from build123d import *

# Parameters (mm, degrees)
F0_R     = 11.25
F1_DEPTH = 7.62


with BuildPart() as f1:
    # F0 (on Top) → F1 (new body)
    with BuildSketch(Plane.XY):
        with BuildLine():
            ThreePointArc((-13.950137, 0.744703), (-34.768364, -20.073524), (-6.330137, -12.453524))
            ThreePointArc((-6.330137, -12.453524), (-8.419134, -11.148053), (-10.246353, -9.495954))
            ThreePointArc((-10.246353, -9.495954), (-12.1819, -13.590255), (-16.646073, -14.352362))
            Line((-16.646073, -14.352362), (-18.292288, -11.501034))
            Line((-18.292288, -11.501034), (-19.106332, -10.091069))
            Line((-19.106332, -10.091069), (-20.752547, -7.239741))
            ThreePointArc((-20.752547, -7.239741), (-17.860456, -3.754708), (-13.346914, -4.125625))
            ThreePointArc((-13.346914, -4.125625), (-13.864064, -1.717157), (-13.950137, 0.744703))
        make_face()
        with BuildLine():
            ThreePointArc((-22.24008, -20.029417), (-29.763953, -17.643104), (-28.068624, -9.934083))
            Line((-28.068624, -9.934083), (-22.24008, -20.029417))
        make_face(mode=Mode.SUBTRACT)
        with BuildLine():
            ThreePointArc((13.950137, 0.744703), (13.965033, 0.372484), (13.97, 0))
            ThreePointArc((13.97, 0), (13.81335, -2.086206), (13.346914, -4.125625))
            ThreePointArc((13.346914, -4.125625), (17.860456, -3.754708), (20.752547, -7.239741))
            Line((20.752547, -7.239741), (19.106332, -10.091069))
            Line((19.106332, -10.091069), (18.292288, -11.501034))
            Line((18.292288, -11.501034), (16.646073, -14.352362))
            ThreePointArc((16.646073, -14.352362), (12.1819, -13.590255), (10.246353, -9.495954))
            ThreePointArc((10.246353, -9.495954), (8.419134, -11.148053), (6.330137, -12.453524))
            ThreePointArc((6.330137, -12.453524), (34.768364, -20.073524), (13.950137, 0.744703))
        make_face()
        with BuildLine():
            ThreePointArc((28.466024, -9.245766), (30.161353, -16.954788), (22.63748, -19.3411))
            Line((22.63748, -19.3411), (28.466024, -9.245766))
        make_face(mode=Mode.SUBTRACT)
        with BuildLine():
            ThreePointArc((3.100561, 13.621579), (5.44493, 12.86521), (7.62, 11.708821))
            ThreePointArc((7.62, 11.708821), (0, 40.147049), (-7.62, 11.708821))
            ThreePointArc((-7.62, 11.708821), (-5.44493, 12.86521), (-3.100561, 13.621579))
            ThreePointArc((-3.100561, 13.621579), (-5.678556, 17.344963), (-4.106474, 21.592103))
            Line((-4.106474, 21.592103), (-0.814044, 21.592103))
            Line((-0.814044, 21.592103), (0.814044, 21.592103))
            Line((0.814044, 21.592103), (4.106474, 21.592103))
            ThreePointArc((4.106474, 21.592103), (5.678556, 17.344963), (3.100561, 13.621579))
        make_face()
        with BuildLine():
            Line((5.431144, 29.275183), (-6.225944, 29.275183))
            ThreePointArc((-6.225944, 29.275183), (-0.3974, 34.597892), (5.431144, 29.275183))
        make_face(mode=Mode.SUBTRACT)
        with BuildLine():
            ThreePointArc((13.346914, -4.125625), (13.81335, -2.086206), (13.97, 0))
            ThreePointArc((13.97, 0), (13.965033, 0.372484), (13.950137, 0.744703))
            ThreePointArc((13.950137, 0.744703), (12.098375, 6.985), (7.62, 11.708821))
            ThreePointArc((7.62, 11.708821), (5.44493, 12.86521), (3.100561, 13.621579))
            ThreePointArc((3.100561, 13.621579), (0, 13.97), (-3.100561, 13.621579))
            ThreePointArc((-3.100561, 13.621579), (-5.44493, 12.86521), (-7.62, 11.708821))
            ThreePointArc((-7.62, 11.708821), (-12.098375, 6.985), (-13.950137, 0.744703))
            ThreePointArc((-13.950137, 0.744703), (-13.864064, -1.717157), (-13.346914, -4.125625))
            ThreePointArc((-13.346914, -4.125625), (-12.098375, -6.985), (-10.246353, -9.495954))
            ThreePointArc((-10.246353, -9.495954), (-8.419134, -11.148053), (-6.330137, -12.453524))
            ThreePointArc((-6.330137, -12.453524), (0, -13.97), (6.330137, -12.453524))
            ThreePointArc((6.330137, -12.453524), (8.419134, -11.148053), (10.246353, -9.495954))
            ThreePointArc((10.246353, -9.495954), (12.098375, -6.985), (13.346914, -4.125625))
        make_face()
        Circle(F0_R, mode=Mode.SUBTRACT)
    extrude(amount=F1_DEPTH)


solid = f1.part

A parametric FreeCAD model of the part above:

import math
import FreeCAD as App
import Part
import Sketcher
from FreeCAD import Vector
Q = App.Units.Quantity

doc = App.newDocument("Part")
body = doc.addObject("PartDesign::Body", "Body")

# Sketch on XY plane
sketch1 = body.newObject("Sketcher::SketchObject", "Sketch")
sketch1.AttachmentSupport = (doc.getObject("XY_Plane"), [""])
sketch1.MapMode = "FlatFace"
sketch1.addGeometry([
    Part.ArcOfCircle(Part.Circle(Vector(-21.570137, -12.453524, 0), Vector(0, 0, 1), 15.24), math.radians(60), math.radians(360)),  # 0
    Part.ArcOfCircle(Part.Circle(Vector(0, -0.000002, 0), Vector(0, 0, 1), 13.969998), math.radians(-116.944273), math.radians(-63.055727)),  # 1
    Part.ArcOfCircle(Part.Circle(Vector(21.570137, -12.453524, 0), Vector(0, 0, 1), 15.24), math.radians(180), math.radians(480)),  # 2
    Part.ArcOfCircle(Part.Circle(Vector(0.000002, 0, 0), Vector(0, 0, 1), 13.969998), math.radians(3.055731), math.radians(56.944274)),  # 3
    Part.ArcOfCircle(Part.Circle(Vector(0, 24.907049, 0), Vector(0, 0, 1), 15.24), math.radians(-60.000001), math.radians(240.000001)),  # 4
    Part.ArcOfCircle(Part.Circle(Vector(-0.000002, 0, 0), Vector(0, 0, 1), 13.969998), math.radians(123.055726), math.radians(176.944269)),  # 5
    Part.LineSegment(Vector(-28.068624, -9.934083, 0), Vector(-22.24008, -20.029417, 0)),  # 6
    Part.ArcOfCircle(Part.Circle(Vector(-24.69547, -14.716815, 0), Vector(0, 0, 1), 5.852579), math.radians(125.194462), math.radians(294.80554)),  # 7
    Part.ArcOfCircle(Part.Circle(Vector(-15.959872, -8.27446, 0), Vector(0, 0, 1), 4.903099), math.radians(57.797067), math.radians(167.817062)),  # 8
    Part.ArcOfCircle(Part.Circle(Vector(-0.000011, -0.000006, 0), Vector(0, 0, 1), 13.969987), math.radians(-162.823264), math.radians(-137.176734)),  # 9
    Part.ArcOfCircle(Part.Circle(Vector(-15.145827, -9.684425, 0), Vector(0, 0, 1), 4.903098), math.radians(-107.817082), math.radians(2.20295)),  # 10
    Part.LineSegment(Vector(-16.646073, -14.352362, 0), Vector(-18.292288, -11.501034, 0)),  # 11
    Part.LineSegment(Vector(-18.292288, -11.501034, 0), Vector(-19.106332, -10.091069, 0)),  # 12
    Part.LineSegment(Vector(-19.106332, -10.091069, 0), Vector(-20.752547, -7.239741, 0)),  # 13
    Part.Circle(Vector(0, 0, 0), Vector(0, 0, 1), 11.25),  # 14
    Part.ArcOfCircle(Part.Circle(Vector(0.000011, -0.000006, 0), Vector(0, 0, 1), 13.969987), math.radians(-42.823266), math.radians(-17.176736)),  # 15
    Part.ArcOfCircle(Part.Circle(Vector(15.959872, -8.27446, 0), Vector(0, 0, 1), 4.903099), math.radians(12.182938), math.radians(122.202933)),  # 16
    Part.LineSegment(Vector(20.752547, -7.239741, 0), Vector(19.106332, -10.091069, 0)),  # 17
    Part.LineSegment(Vector(19.106332, -10.091069, 0), Vector(18.292288, -11.501034, 0)),  # 18
    Part.LineSegment(Vector(18.292288, -11.501034, 0), Vector(16.646073, -14.352362, 0)),  # 19
    Part.ArcOfCircle(Part.Circle(Vector(15.145827, -9.684425, 0), Vector(0, 0, 1), 4.903098), math.radians(177.79705), math.radians(287.817082)),  # 20
    Part.LineSegment(Vector(22.63748, -19.3411, 0), Vector(28.466024, -9.245766, 0)),  # 21
    Part.ArcOfCircle(Part.Circle(Vector(25.092871, -14.028498, 0), Vector(0, 0, 1), 5.852579), math.radians(-114.805545), math.radians(54.805543)),  # 22
    Part.ArcOfCircle(Part.Circle(Vector(0, 0.00001, 0), Vector(0, 0, 1), 13.96999), math.radians(77.176737), math.radians(102.823263)),  # 23
    Part.ArcOfCircle(Part.Circle(Vector(-0.814044, 17.958884, 0), Vector(0, 0, 1), 4.903098), math.radians(132.182929), math.radians(242.202943)),  # 24
    Part.LineSegment(Vector(-4.106474, 21.592103, 0), Vector(4.106474, 21.592103, 0)),  # 25
    Part.ArcOfCircle(Part.Circle(Vector(0.814044, 17.958884, 0), Vector(0, 0, 1), 4.903098), math.radians(-62.202943), math.radians(47.817071)),  # 26
    Part.LineSegment(Vector(5.431144, 29.275183, 0), Vector(-6.225944, 29.275183, 0)),  # 27
    Part.ArcOfCircle(Part.Circle(Vector(-0.3974, 28.745312, 0), Vector(0, 0, 1), 5.85258), math.radians(5.194458), math.radians(174.805542)),  # 28
], False)
sketch1.addConstraint([
    Sketcher.Constraint("Coincident", 0, 2, 1, 1),
    Sketcher.Constraint("Coincident", 1, 2, 2, 1),
    Sketcher.Constraint("Coincident", 2, 2, 3, 1),
    Sketcher.Constraint("Coincident", 3, 2, 4, 1),
    Sketcher.Constraint("Coincident", 4, 2, 5, 1),
    Sketcher.Constraint("Coincident", 5, 2, 0, 1),
    Sketcher.Constraint("Coincident", 6, 1, 7, 1),
    Sketcher.Constraint("Coincident", 7, 2, 6, 2),
    Sketcher.Constraint("Coincident", 8, 1, 9, 1),
    Sketcher.Constraint("Coincident", 9, 2, 10, 2),
    Sketcher.Constraint("Coincident", 10, 1, 11, 1),
    Sketcher.Constraint("Coincident", 11, 2, 12, 1),
    Sketcher.Constraint("Coincident", 12, 2, 13, 1),
    Sketcher.Constraint("Coincident", 13, 2, 8, 2),
    Sketcher.Constraint("Coincident", 15, 2, 16, 2),
    Sketcher.Constraint("Coincident", 16, 1, 17, 1),
    Sketcher.Constraint("Coincident", 17, 2, 18, 1),
    Sketcher.Constraint("Coincident", 18, 2, 19, 1),
    Sketcher.Constraint("Coincident", 19, 2, 20, 2),
    Sketcher.Constraint("Coincident", 20, 1, 15, 1),
    Sketcher.Constraint("Coincident", 21, 1, 22, 1),
    Sketcher.Constraint("Coincident", 22, 2, 21, 2),
    Sketcher.Constraint("Coincident", 23, 2, 24, 2),
    Sketcher.Constraint("Coincident", 24, 1, 25, 1),
    Sketcher.Constraint("Coincident", 25, 2, 26, 2),
    Sketcher.Constraint("Coincident", 26, 1, 23, 1),
    Sketcher.Constraint("Coincident", 27, 1, 28, 1),
    Sketcher.Constraint("Coincident", 28, 2, 27, 2),
    Sketcher.Constraint("Horizontal", 25),
    Sketcher.Constraint("Horizontal", 27),
    Sketcher.Constraint("Coincident", 1, 3, -1, 1),
    Sketcher.Constraint("Coincident", 3, 3, -1, 1),
    Sketcher.Constraint("Coincident", 5, 3, -1, 1),
    Sketcher.Constraint("Coincident", 14, 3, -1, 1),
    Sketcher.Constraint("Coincident", 23, 3, 3, 3),
    Sketcher.Constraint("Equal", 0, 2),
    Sketcher.Constraint("Equal", 1, 3),
    Sketcher.Constraint("Equal", 2, 4),
    Sketcher.Constraint("Equal", 3, 5),
    Sketcher.Constraint("Equal", 8, 10),
    Sketcher.Constraint("Equal", 9, 15),
    Sketcher.Constraint("Equal", 10, 16),
    Sketcher.Constraint("Equal", 16, 20),
    Sketcher.Constraint("Equal", 7, 22),
    Sketcher.Constraint("Equal", 20, 24),
    Sketcher.Constraint("Equal", 24, 26),
    Sketcher.Constraint("Equal", 22, 28),
    Sketcher.Constraint("Symmetric", 0, 3, 2, 3, -2),
    Sketcher.Constraint("Symmetric", 9, 3, 15, 3, -2),
    Sketcher.Constraint("Symmetric", 8, 3, 16, 3, -2),
    Sketcher.Constraint("Symmetric", 10, 3, 20, 3, -2),
    Sketcher.Constraint("Symmetric", 24, 3, 26, 3, -2),
    Sketcher.Constraint("Symmetric", 12, 2, 17, 2, -2),
    Sketcher.Constraint("Symmetric", 11, 2, 18, 2, -2),
    Sketcher.Constraint("PointOnObject", 4, 3, -2),
    Sketcher.Constraint("Parallel", 6, 11),
    Sketcher.Constraint("Parallel", 11, 12),
    Sketcher.Constraint("Parallel", 12, 13),
    Sketcher.Constraint("Parallel", 17, 18),
    Sketcher.Constraint("Parallel", 18, 19),
    Sketcher.Constraint("Parallel", 19, 21),
    Sketcher.Constraint("Horizontal", 2, 3, 0, 2),
    Sketcher.Constraint("Equal", 11, 13),
    Sketcher.Constraint("Equal", 6, 21),
    Sketcher.Constraint("Radius", 0, Q("0.6 in")),
    Sketcher.Constraint("Radius", 1, Q("0.5499999 in")),
    Sketcher.Constraint("Angle", 6, Q("-59.999999 deg")),
    Sketcher.Constraint("DistanceX", -1, 1, 3, 2, Q("0.3 in")),
    Sketcher.Constraint("Diameter", 14, Q("22.5 mm")),
    Sketcher.Constraint("Radius", 8, Q("4.903099 mm")),
    Sketcher.Constraint("Radius", 7, Q("5.852579 mm")),
    Sketcher.Constraint("Radius", 23, Q("13.96999 mm")),
    Sketcher.Constraint("DistanceX", 0, 3, 12, 2, Q("0.0970002 in")),
    Sketcher.Constraint("Radius", 9, Q("13.969987 mm")),
    Sketcher.Constraint("DistanceY", 23, 2, 24, 1, Q("0.3138002 in")),
    Sketcher.Constraint("DistanceX", 25, 1, 25, 2, Q("8.212948 mm")),
    Sketcher.Constraint("DistanceX", 28, 3, -1, 1, Q("0.3974 mm")),
    Sketcher.Constraint("DistanceY", 21, 1, -1, 1, Q("19.3411 mm")),
    Sketcher.Constraint("DistanceX", 7, 3, 8, 3, Q("8.735599 mm")),
    Sketcher.Constraint("DistanceY", 0, 3, 10, 3, Q("2.769099 mm")),
    Sketcher.Constraint("DistanceX", 16, 3, 22, 3, Q("9.132999 mm")),
    Sketcher.Constraint("DistanceY", 22, 3, 3, 3, Q("14.028498 mm")),
    Sketcher.Constraint("DistanceY", 10, 3, 8, 1, Q("5.5588 mm")),
    Sketcher.Constraint("DistanceX", 10, 1, 8, 3, Q("0.686201 mm")),
    Sketcher.Constraint("DistanceY", 10, 1, 8, 3, Q("6.077902 mm")),
    Sketcher.Constraint("DistanceX", 26, 3, 27, 1, Q("4.6171 mm")),
    Sketcher.Constraint("DistanceY", 26, 3, 27, 1, Q("11.316299 mm")),
    Sketcher.Constraint("Distance", 11, Q("3.29243 mm")),
    Sketcher.Constraint("DistanceX", 27, 2, 27, 1, Q("11.657088 mm")),
    Sketcher.Constraint("DistanceX", 7, 3, -1, 1, Q("24.69547 mm")),
    Sketcher.Constraint("DistanceY", 8, 3, -1, 1, Q("8.27446 mm")),
    Sketcher.Constraint("DistanceY", 7, 3, 0, 3, Q("2.26329 mm")),
    Sketcher.Constraint("DistanceX", 8, 3, 9, 3, Q("15.95986 mm")),
])
pad1 = body.newObject("PartDesign::Pad", "Pad")
pad1.Profile = sketch1
pad1.Length = Q("0.3 in")

doc.recompute()
